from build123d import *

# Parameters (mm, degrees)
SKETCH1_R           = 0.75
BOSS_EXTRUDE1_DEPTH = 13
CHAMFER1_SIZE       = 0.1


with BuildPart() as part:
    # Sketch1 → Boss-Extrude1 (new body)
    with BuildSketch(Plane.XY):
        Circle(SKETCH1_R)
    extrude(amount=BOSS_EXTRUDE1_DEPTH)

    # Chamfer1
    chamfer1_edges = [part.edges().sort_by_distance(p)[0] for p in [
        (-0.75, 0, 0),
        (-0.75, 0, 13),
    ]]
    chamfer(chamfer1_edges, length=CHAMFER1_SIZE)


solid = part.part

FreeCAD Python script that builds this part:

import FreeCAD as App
import Part
import Sketcher
Q = App.Units.Quantity


def edges_at(feature, points):
    """Names of the edges that pass closest to the given points."""
    edges = feature.Shape.Edges
    near = lambda p: min(range(len(edges)), key=lambda i: edges[i].distToShape(Part.Vertex(*p))[0])
    return sorted({f"Edge{near(p) + 1}" for p in points})

doc = App.newDocument("Part")
body = doc.addObject("PartDesign::Body", "Body")

# Sketch on XY plane
sketch1 = body.newObject("Sketcher::SketchObject", "Sketch")
sketch1.AttachmentSupport = (doc.getObject("XY_Plane"), [""])
sketch1.MapMode = "FlatFace"
sketch1.addGeometry(Part.Circle(App.Vector(0, 0, 0), App.Vector(0, 0, 1), 0.75), False)
sketch1.addConstraint(Sketcher.Constraint("Coincident", 0, 3, -1, 1))
sketch1.addConstraint(Sketcher.Constraint("Diameter", 0, Q("1.5 mm")))
pad1 = body.newObject("PartDesign::Pad", "Pad")
pad1.Profile = sketch1
pad1.Length = 13
doc.recompute()

chamfer = body.newObject("PartDesign::Chamfer", "Chamfer")
chamfer.Base = (pad1, edges_at(pad1, [(-0.75, 0, 0), (-0.75, 0, 13)]))
chamfer.Size = 0.1

doc.recompute()
